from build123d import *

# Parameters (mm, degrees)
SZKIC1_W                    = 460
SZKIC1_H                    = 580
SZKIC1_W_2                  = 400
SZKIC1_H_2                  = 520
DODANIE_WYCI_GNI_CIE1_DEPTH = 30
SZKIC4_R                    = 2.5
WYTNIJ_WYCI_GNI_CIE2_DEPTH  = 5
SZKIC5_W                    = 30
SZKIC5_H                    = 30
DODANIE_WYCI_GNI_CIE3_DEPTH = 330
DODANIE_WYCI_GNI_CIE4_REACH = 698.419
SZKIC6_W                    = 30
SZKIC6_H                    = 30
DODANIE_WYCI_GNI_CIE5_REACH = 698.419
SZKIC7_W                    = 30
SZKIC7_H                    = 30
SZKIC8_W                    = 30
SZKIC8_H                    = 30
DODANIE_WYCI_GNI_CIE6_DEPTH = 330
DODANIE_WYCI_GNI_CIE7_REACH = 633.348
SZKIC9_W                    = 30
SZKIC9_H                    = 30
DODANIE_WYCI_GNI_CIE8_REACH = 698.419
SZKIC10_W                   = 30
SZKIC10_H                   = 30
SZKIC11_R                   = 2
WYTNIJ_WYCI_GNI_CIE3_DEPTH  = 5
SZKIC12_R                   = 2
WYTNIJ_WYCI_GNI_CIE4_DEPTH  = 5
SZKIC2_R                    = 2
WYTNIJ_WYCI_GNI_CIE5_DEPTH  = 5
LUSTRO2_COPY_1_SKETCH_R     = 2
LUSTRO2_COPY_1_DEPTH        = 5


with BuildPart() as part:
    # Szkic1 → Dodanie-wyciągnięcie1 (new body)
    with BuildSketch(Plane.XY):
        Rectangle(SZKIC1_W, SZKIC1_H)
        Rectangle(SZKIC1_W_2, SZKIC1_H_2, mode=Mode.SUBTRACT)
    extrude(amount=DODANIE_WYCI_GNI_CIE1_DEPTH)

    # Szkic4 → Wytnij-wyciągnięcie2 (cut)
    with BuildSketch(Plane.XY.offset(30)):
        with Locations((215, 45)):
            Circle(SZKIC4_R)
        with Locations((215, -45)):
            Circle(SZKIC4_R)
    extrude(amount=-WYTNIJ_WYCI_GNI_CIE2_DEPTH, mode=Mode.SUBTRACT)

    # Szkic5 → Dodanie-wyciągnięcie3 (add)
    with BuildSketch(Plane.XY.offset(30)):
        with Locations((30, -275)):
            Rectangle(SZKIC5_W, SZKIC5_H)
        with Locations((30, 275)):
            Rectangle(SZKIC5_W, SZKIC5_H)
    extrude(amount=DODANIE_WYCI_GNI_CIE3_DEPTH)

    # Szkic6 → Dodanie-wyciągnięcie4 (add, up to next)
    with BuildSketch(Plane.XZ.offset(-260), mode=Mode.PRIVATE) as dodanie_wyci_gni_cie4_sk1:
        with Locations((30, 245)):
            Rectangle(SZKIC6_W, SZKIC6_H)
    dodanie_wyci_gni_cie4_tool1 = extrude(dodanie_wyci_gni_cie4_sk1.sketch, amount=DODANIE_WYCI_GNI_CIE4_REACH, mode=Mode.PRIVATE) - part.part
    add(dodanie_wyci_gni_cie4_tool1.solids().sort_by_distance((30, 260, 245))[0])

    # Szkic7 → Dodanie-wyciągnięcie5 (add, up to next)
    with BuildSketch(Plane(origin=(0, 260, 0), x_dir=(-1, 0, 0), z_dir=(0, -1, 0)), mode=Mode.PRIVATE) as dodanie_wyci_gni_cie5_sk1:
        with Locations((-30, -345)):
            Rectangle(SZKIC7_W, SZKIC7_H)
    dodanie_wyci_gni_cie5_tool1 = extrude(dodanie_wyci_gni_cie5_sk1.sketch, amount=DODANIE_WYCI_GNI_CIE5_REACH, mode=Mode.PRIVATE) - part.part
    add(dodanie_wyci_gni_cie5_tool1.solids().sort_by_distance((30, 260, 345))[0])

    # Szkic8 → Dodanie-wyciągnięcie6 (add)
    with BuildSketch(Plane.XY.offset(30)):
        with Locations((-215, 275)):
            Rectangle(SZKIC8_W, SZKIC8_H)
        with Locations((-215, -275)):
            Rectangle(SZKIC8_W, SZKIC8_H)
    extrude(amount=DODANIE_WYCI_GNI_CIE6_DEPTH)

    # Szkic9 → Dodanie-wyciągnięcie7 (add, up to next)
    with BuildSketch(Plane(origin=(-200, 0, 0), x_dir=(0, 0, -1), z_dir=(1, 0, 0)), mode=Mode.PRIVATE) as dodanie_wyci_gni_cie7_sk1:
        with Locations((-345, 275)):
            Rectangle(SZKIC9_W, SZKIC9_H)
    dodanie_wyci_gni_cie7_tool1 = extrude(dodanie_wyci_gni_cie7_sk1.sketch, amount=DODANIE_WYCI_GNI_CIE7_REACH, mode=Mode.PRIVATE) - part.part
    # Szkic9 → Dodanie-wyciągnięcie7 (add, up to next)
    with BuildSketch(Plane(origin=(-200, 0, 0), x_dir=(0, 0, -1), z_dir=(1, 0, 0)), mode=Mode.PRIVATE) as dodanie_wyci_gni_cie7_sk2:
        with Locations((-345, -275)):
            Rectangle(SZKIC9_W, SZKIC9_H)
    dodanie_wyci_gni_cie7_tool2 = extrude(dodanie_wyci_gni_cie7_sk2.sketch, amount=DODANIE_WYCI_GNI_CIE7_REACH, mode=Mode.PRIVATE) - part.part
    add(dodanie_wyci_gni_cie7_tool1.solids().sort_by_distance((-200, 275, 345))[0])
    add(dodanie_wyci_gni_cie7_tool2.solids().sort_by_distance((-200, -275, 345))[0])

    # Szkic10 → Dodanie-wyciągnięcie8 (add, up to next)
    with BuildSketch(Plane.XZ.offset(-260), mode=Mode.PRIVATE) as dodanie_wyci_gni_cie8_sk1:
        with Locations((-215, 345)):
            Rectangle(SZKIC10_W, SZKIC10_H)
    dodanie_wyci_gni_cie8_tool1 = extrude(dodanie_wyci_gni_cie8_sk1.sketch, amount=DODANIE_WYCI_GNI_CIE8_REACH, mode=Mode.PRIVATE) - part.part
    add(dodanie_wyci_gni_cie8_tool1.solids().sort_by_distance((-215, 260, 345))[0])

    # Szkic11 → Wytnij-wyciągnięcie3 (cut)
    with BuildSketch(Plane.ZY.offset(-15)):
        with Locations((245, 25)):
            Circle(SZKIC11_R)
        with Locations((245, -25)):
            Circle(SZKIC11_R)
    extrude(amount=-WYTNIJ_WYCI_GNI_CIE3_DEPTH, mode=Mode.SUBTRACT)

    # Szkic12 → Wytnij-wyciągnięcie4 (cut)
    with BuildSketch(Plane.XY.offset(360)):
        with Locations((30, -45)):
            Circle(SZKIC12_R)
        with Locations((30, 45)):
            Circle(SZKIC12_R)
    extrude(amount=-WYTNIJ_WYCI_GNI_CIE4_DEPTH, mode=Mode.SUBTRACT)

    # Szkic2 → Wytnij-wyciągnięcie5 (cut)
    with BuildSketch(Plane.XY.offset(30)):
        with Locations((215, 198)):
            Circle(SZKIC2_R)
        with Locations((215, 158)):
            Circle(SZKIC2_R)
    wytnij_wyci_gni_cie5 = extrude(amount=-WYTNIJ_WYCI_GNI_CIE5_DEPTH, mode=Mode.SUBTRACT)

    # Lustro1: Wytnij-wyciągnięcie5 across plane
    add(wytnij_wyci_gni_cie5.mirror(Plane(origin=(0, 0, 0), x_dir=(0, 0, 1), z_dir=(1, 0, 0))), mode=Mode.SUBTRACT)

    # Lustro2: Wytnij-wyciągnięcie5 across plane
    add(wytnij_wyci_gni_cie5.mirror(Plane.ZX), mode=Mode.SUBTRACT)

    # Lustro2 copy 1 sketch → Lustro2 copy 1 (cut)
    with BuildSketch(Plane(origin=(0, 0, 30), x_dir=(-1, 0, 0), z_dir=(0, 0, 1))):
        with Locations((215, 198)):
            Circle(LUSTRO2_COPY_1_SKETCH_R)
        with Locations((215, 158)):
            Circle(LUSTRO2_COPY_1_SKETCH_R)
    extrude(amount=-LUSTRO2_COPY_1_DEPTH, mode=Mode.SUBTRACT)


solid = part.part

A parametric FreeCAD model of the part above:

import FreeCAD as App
import Part
import Sketcher
Q = App.Units.Quantity

doc = App.newDocument("Part")
body = doc.addObject("PartDesign::Body", "Body")

# Sketch on XY plane
sketch1 = body.newObject("Sketcher::SketchObject", "Sketch")
sketch1.AttachmentSupport = (doc.getObject("XY_Plane"), [""])
sketch1.MapMode = "FlatFace"
sketch1.addGeometry([
    Part.LineSegment(App.Vector(-230, 290, 0), App.Vector(-230, -290, 0)),  # 0
    Part.LineSegment(App.Vector(-230, -290, 0), App.Vector(230, -290, 0)),  # 1
    Part.LineSegment(App.Vector(230, -290, 0), App.Vector(230, 290, 0)),  # 2
    Part.LineSegment(App.Vector(230, 290, 0), App.Vector(-230, 290, 0)),  # 3
    Part.LineSegment(App.Vector(200, -260, 0), App.Vector(-200, -260, 0)),  # 4
    Part.LineSegment(App.Vector(-200, -260, 0), App.Vector(-200, 260, 0)),  # 5
    Part.LineSegment(App.Vector(-200, 260, 0), App.Vector(200, 260, 0)),  # 6
    Part.LineSegment(App.Vector(200, 260, 0), App.Vector(200, -260, 0)),  # 7
], False)
sketch1.addConstraint([
    Sketcher.Constraint("Coincident", 0, 2, 1, 1),
    Sketcher.Constraint("Coincident", 1, 2, 2, 1),
    Sketcher.Constraint("Coincident", 2, 2, 3, 1),
    Sketcher.Constraint("Coincident", 3, 2, 0, 1),
    Sketcher.Constraint("Coincident", 4, 2, 5, 1),
    Sketcher.Constraint("Coincident", 5, 2, 6, 1),
    Sketcher.Constraint("Coincident", 6, 2, 7, 1),
    Sketcher.Constraint("Coincident", 7, 2, 4, 1),
    Sketcher.Constraint("Vertical", 0),
    Sketcher.Constraint("Horizontal", 1),
    Sketcher.Constraint("Vertical", 2),
    Sketcher.Constraint("Horizontal", 3),
    Sketcher.Constraint("Horizontal", 4),
    Sketcher.Constraint("Vertical", 5),
    Sketcher.Constraint("Horizontal", 6),
    Sketcher.Constraint("Vertical", 7),
    Sketcher.Constraint("Symmetric", 0, 2, 2, 2, -1, 1),
    Sketcher.Constraint("Symmetric", 4, 2, 6, 2, -1, 1),
    Sketcher.Constraint("DistanceX", 1, 1, 1, 2, Q("460 mm")),
    Sketcher.Constraint("DistanceX", 4, 2, 4, 1, Q("400 mm")),
    Sketcher.Constraint("DistanceY", 0, 2, 0, 1, Q("580 mm")),
    Sketcher.Constraint("DistanceY", 5, 1, 5, 2, Q("520 mm")),
])
pad1 = body.newObject("PartDesign::Pad", "Pad")
pad1.Profile = sketch1
pad1.Length = 30

# Sketch on XY plane
sketch2 = body.newObject("Sketcher::SketchObject", "Sketch001")
sketch2.AttachmentSupport = (doc.getObject("XY_Plane"), [""])
sketch2.MapMode = "FlatFace"
sketch2.AttachmentOffset = App.Placement(App.Vector(0, 0, 30), App.Rotation())
sketch2.addGeometry([
    Part.Circle(App.Vector(215, 45, 0), App.Vector(0, 0, 1), 2.5),
    Part.Circle(App.Vector(215, -45, 0), App.Vector(0, 0, 1), 2.5),
], False)
sketch2.addConstraint([
    Sketcher.Constraint("Equal", 0, 1),
    Sketcher.Constraint("Symmetric", 0, 3, 1, 3, -1),
    Sketcher.Constraint("Diameter", 0, Q("5 mm")),
    Sketcher.Constraint("DistanceX", -1, 1, 0, 3, Q("215 mm")),
    Sketcher.Constraint("DistanceY", -1, 1, 0, 3, Q("45 mm")),
])
pocket1 = body.newObject("PartDesign::Pocket", "Pocket")
pocket1.Profile = sketch2
pocket1.Length = 5

# Sketch on XY plane
sketch3 = body.newObject("Sketcher::SketchObject", "Sketch002")
sketch3.AttachmentSupport = (doc.getObject("XY_Plane"), [""])
sketch3.MapMode = "FlatFace"
sketch3.AttachmentOffset = App.Placement(App.Vector(0, 0, 30), App.Rotation())
sketch3.addGeometry([
    Part.LineSegment(App.Vector(15, -260, 0), App.Vector(15, -290, 0)),  # 0
    Part.LineSegment(App.Vector(15, -290, 0), App.Vector(45, -290, 0)),  # 1
    Part.LineSegment(App.Vector(45, -290, 0), App.Vector(45, -260, 0)),  # 2
    Part.LineSegment(App.Vector(45, -260, 0), App.Vector(15, -260, 0)),  # 3
    Part.LineSegment(App.Vector(15, 290, 0), App.Vector(15, 260, 0)),  # 4
    Part.LineSegment(App.Vector(15, 260, 0), App.Vector(45, 260, 0)),  # 5
    Part.LineSegment(App.Vector(45, 260, 0), App.Vector(45, 290, 0)),  # 6
    Part.LineSegment(App.Vector(45, 290, 0), App.Vector(15, 290, 0)),  # 7
], False)
sketch3.addConstraint([
    Sketcher.Constraint("Coincident", 0, 2, 1, 1),
    Sketcher.Constraint("Coincident", 1, 2, 2, 1),
    Sketcher.Constraint("Coincident", 2, 2, 3, 1),
    Sketcher.Constraint("Coincident", 3, 2, 0, 1),
    Sketcher.Constraint("Coincident", 4, 2, 5, 1),
    Sketcher.Constraint("Coincident", 5, 2, 6, 1),
    Sketcher.Constraint("Coincident", 6, 2, 7, 1),
    Sketcher.Constraint("Coincident", 7, 2, 4, 1),
    Sketcher.Constraint("Vertical", 0),
    Sketcher.Constraint("Horizontal", 1),
    Sketcher.Constraint("Vertical", 2),
    Sketcher.Constraint("Horizontal", 3),
    Sketcher.Constraint("Vertical", 4),
    Sketcher.Constraint("Horizontal", 5),
    Sketcher.Constraint("Vertical", 6),
    Sketcher.Constraint("Horizontal", 7),
    Sketcher.Constraint("Symmetric", 3, 2, 4, 2, -1),
    Sketcher.Constraint("Symmetric", 1, 2, 6, 2, -1),
    Sketcher.Constraint("Equal", 7, 0),
    Sketcher.Constraint("DistanceX", 1, 1, 1, 2, Q("30 mm")),
    Sketcher.Constraint("DistanceX", -1, 1, 0, 2, Q("15 mm")),
    Sketcher.Constraint("DistanceY", 0, 2, -1, 1, Q("290 mm")),
])
pad2 = body.newObject("PartDesign::Pad", "Pad001")
pad2.Profile = sketch3
pad2.Length = 330

# Sketch on XZ plane
sketch4 = body.newObject("Sketcher::SketchObject", "Sketch003")
sketch4.AttachmentSupport = (doc.getObject("XZ_Plane"), [""])
sketch4.MapMode = "FlatFace"
sketch4.AttachmentOffset = App.Placement(App.Vector(0, 0, -260), App.Rotation())
sketch4.addGeometry([
    Part.LineSegment(App.Vector(15, 260, 0), App.Vector(15, 230, 0)),
    Part.LineSegment(App.Vector(15, 230, 0), App.Vector(45, 230, 0)),
    Part.LineSegment(App.Vector(45, 230, 0), App.Vector(45, 260, 0)),
    Part.LineSegment(App.Vector(45, 260, 0), App.Vector(15, 260, 0)),
], False)
sketch4.addConstraint([
    Sketcher.Constraint("Coincident", 0, 2, 1, 1),
    Sketcher.Constraint("Coincident", 1, 2, 2, 1),
    Sketcher.Constraint("Coincident", 2, 2, 3, 1),
    Sketcher.Constraint("Coincident", 3, 2, 0, 1),
    Sketcher.Constraint("Vertical", 0),
    Sketcher.Constraint("Horizontal", 1),
    Sketcher.Constraint("Vertical", 2),
    Sketcher.Constraint("Horizontal", 3),
    Sketcher.Constraint("Equal", 3, 0),
    Sketcher.Constraint("DistanceX", 1, 1, 1, 2, Q("30 mm")),
    Sketcher.Constraint("DistanceX", -1, 1, 0, 2, Q("15 mm")),
    Sketcher.Constraint("DistanceY", -1, 1, 0, 2, Q("230 mm")),
])
pad3 = body.newObject("PartDesign::Pad", "Pad002")
pad3.Profile = sketch4
pad3.Type = "UpToFirst"

# Sketch on XZ plane
sketch5 = body.newObject("Sketcher::SketchObject", "Sketch004")
sketch5.AttachmentSupport = (doc.getObject("XZ_Plane"), [""])
sketch5.MapMode = "FlatFace"
sketch5.AttachmentOffset = App.Placement(App.Vector(0, 0, -260), App.Rotation())
sketch5.addGeometry([
    Part.LineSegment(App.Vector(45, 330, 0), App.Vector(45, 360, 0)),
    Part.LineSegment(App.Vector(45, 360, 0), App.Vector(15, 360, 0)),
    Part.LineSegment(App.Vector(15, 360, 0), App.Vector(15, 330, 0)),
    Part.LineSegment(App.Vector(15, 330, 0), App.Vector(45, 330, 0)),
], False)
sketch5.addConstraint([
    Sketcher.Constraint("Coincident", 0, 2, 1, 1),
    Sketcher.Constraint("Coincident", 1, 2, 2, 1),
    Sketcher.Constraint("Coincident", 2, 2, 3, 1),
    Sketcher.Constraint("Coincident", 3, 2, 0, 1),
    Sketcher.Constraint("Vertical", 0),
    Sketcher.Constraint("Horizontal", 1),
    Sketcher.Constraint("Vertical", 2),
    Sketcher.Constraint("Horizontal", 3),
    Sketcher.Constraint("Equal", 3, 0),
    Sketcher.Constraint("DistanceX", 1, 2, 1, 1, Q("30 mm")),
    Sketcher.Constraint("DistanceX", -1, 1, 0, 2, Q("45 mm")),
    Sketcher.Constraint("DistanceY", -1, 1, 0, 2, Q("360 mm")),
])
pad4 = body.newObject("PartDesign::Pad", "Pad003")
pad4.Profile = sketch5
pad4.Type = "UpToFirst"

# Sketch on XY plane
sketch6 = body.newObject("Sketcher::SketchObject", "Sketch005")
sketch6.AttachmentSupport = (doc.getObject("XY_Plane"), [""])
sketch6.MapMode = "FlatFace"
sketch6.AttachmentOffset = App.Placement(App.Vector(0, 0, 30), App.Rotation())
sketch6.addGeometry([
    Part.LineSegment(App.Vector(-230, 290, 0), App.Vector(-230, 260, 0)),  # 0
    Part.LineSegment(App.Vector(-230, 260, 0), App.Vector(-200, 260, 0)),  # 1
    Part.LineSegment(App.Vector(-200, 260, 0), App.Vector(-200, 290, 0)),  # 2
    Part.LineSegment(App.Vector(-200, 290, 0), App.Vector(-230, 290, 0)),  # 3
    Part.LineSegment(App.Vector(-230, -260, 0), App.Vector(-230, -290, 0)),  # 4
    Part.LineSegment(App.Vector(-230, -290, 0), App.Vector(-200, -290, 0)),  # 5
    Part.LineSegment(App.Vector(-200, -290, 0), App.Vector(-200, -260, 0)),  # 6
    Part.LineSegment(App.Vector(-200, -260, 0), App.Vector(-230, -260, 0)),  # 7
], False)
sketch6.addConstraint([
    Sketcher.Constraint("Coincident", 0, 2, 1, 1),
    Sketcher.Constraint("Coincident", 1, 2, 2, 1),
    Sketcher.Constraint("Coincident", 2, 2, 3, 1),
    Sketcher.Constraint("Coincident", 3, 2, 0, 1),
    Sketcher.Constraint("Coincident", 4, 2, 5, 1),
    Sketcher.Constraint("Coincident", 5, 2, 6, 1),
    Sketcher.Constraint("Coincident", 6, 2, 7, 1),
    Sketcher.Constraint("Coincident", 7, 2, 4, 1),
    Sketcher.Constraint("Vertical", 0),
    Sketcher.Constraint("Horizontal", 1),
    Sketcher.Constraint("Vertical", 2),
    Sketcher.Constraint("Horizontal", 3),
    Sketcher.Constraint("Vertical", 4),
    Sketcher.Constraint("Horizontal", 5),
    Sketcher.Constraint("Vertical", 6),
    Sketcher.Constraint("Horizontal", 7),
    Sketcher.Constraint("Symmetric", 3, 2, 4, 2, -1),
    Sketcher.Constraint("Symmetric", 1, 2, 6, 2, -1),
    Sketcher.Constraint("Equal", 7, 0),
    Sketcher.Constraint("DistanceX", 1, 1, 1, 2, Q("30 mm")),
    Sketcher.Constraint("DistanceX", 0, 2, -1, 1, Q("230 mm")),
    Sketcher.Constraint("DistanceY", -1, 1, 0, 2, Q("260 mm")),
])
pad5 = body.newObject("PartDesign::Pad", "Pad004")
pad5.Profile = sketch6
pad5.Length = 330

# Sketch on YZ plane
sketch7 = body.newObject("Sketcher::SketchObject", "Sketch006")
sketch7.AttachmentSupport = (doc.getObject("YZ_Plane"), [""])
sketch7.MapMode = "FlatFace"
sketch7.AttachmentOffset = App.Placement(App.Vector(0, 0, -200), App.Rotation())
sketch7.addGeometry([
    Part.LineSegment(App.Vector(290, 360, 0), App.Vector(260, 360, 0)),
    Part.LineSegment(App.Vector(260, 360, 0), App.Vector(260, 330, 0)),
    Part.LineSegment(App.Vector(260, 330, 0), App.Vector(290, 330, 0)),
    Part.LineSegment(App.Vector(290, 330, 0), App.Vector(290, 360, 0)),
], False)
sketch7.addConstraint([
    Sketcher.Constraint("Coincident", 0, 2, 1, 1),
    Sketcher.Constraint("Coincident", 1, 2, 2, 1),
    Sketcher.Constraint("Coincident", 2, 2, 3, 1),
    Sketcher.Constraint("Coincident", 3, 2, 0, 1),
    Sketcher.Constraint("Horizontal", 0),
    Sketcher.Constraint("Vertical", 1),
    Sketcher.Constraint("Horizontal", 2),
    Sketcher.Constraint("Vertical", 3),
    Sketcher.Constraint("Equal", 2, 1),
    Sketcher.Constraint("DistanceX", 0, 2, 0, 1, Q("30 mm")),
    Sketcher.Constraint("DistanceX", -1, 1, 0, 2, Q("260 mm")),
    Sketcher.Constraint("DistanceY", -1, 1, 0, 2, Q("360 mm")),
])
pad6 = body.newObject("PartDesign::Pad", "Pad005")
pad6.Profile = sketch7
pad6.Type = "UpToFirst"

# Sketch on YZ plane
sketch8 = body.newObject("Sketcher::SketchObject", "Sketch007")
sketch8.AttachmentSupport = (doc.getObject("YZ_Plane"), [""])
sketch8.MapMode = "FlatFace"
sketch8.AttachmentOffset = App.Placement(App.Vector(0, 0, -200), App.Rotation())
sketch8.addGeometry([
    Part.LineSegment(App.Vector(-260, 360, 0), App.Vector(-290, 360, 0)),
    Part.LineSegment(App.Vector(-290, 360, 0), App.Vector(-290, 330, 0)),
    Part.LineSegment(App.Vector(-290, 330, 0), App.Vector(-260, 330, 0)),
    Part.LineSegment(App.Vector(-260, 330, 0), App.Vector(-260, 360, 0)),
], False)
sketch8.addConstraint([
    Sketcher.Constraint("Coincident", 0, 2, 1, 1),
    Sketcher.Constraint("Coincident", 1, 2, 2, 1),
    Sketcher.Constraint("Coincident", 2, 2, 3, 1),
    Sketcher.Constraint("Coincident", 3, 2, 0, 1),
    Sketcher.Constraint("Horizontal", 0),
    Sketcher.Constraint("Vertical", 1),
    Sketcher.Constraint("Horizontal", 2),
    Sketcher.Constraint("Vertical", 3),
    Sketcher.Constraint("Equal", 2, 1),
    Sketcher.Constraint("DistanceX", 0, 2, 0, 1, Q("30 mm")),
    Sketcher.Constraint("DistanceX", 0, 2, -1, 1, Q("290 mm")),
    Sketcher.Constraint("DistanceY", -1, 1, 0, 2, Q("360 mm")),
])
pad7 = body.newObject("PartDesign::Pad", "Pad006")
pad7.Profile = sketch8
pad7.Type = "UpToFirst"

# Sketch on XZ plane
sketch9 = body.newObject("Sketcher::SketchObject", "Sketch008")
sketch9.AttachmentSupport = (doc.getObject("XZ_Plane"), [""])
sketch9.MapMode = "FlatFace"
sketch9.AttachmentOffset = App.Placement(App.Vector(0, 0, -260), App.Rotation())
sketch9.addGeometry([
    Part.LineSegment(App.Vector(-230, 360, 0), App.Vector(-230, 330, 0)),
    Part.LineSegment(App.Vector(-230, 330, 0), App.Vector(-200, 330, 0)),
    Part.LineSegment(App.Vector(-200, 330, 0), App.Vector(-200, 360, 0)),
    Part.LineSegment(App.Vector(-200, 360, 0), App.Vector(-230, 360, 0)),
], False)
sketch9.addConstraint([
    Sketcher.Constraint("Coincident", 0, 2, 1, 1),
    Sketcher.Constraint("Coincident", 1, 2, 2, 1),
    Sketcher.Constraint("Coincident", 2, 2, 3, 1),
    Sketcher.Constraint("Coincident", 3, 2, 0, 1),
    Sketcher.Constraint("Vertical", 0),
    Sketcher.Constraint("Horizontal", 1),
    Sketcher.Constraint("Vertical", 2),
    Sketcher.Constraint("Horizontal", 3),
    Sketcher.Constraint("Equal", 3, 0),
    Sketcher.Constraint("DistanceX", 1, 1, 1, 2, Q("30 mm")),
    Sketcher.Constraint("DistanceX", 0, 2, -1, 1, Q("230 mm")),
    Sketcher.Constraint("DistanceY", -1, 1, 0, 2, Q("330 mm")),
])
pad8 = body.newObject("PartDesign::Pad", "Pad007")
pad8.Profile = sketch9
pad8.Type = "UpToFirst"

# Sketch on YZ plane
sketch10 = body.newObject("Sketcher::SketchObject", "Sketch009")
sketch10.AttachmentSupport = (doc.getObject("YZ_Plane"), [""])
sketch10.MapMode = "FlatFace"
sketch10.AttachmentOffset = App.Placement(App.Vector(0, 0, 15), App.Rotation())
sketch10.addGeometry([
    Part.Circle(App.Vector(25, 245, 0), App.Vector(0, 0, 1), 2),
    Part.Circle(App.Vector(-25, 245, 0), App.Vector(0, 0, 1), 2),
], False)
sketch10.addConstraint([
    Sketcher.Constraint("Equal", 0, 1),
    Sketcher.Constraint("Symmetric", 0, 3, 1, 3, -2),
    Sketcher.Constraint("Diameter", 0, Q("4 mm")),
    Sketcher.Constraint("DistanceX", -1, 1, 0, 3, Q("25 mm")),
    Sketcher.Constraint("DistanceY", -1, 1, 0, 3, Q("245 mm")),
])
pocket2 = body.newObject("PartDesign::Pocket", "Pocket001")
pocket2.Profile = sketch10
pocket2.Length = 5
pocket2.Reversed = True

# Sketch on XY plane
sketch11 = body.newObject("Sketcher::SketchObject", "Sketch010")
sketch11.AttachmentSupport = (doc.getObject("XY_Plane"), [""])
sketch11.MapMode = "FlatFace"
sketch11.AttachmentOffset = App.Placement(App.Vector(0, 0, 360), App.Rotation())
sketch11.addGeometry([
    Part.Circle(App.Vector(30, -45, 0), App.Vector(0, 0, 1), 2),
    Part.Circle(App.Vector(30, 45, 0), App.Vector(0, 0, 1), 2),
], False)
sketch11.addConstraint([
    Sketcher.Constraint("Equal", 0, 1),
    Sketcher.Constraint("Symmetric", 0, 3, 1, 3, -1),
    Sketcher.Constraint("Diameter", 0, Q("4 mm")),
    Sketcher.Constraint("DistanceX", -1, 1, 0, 3, Q("30 mm")),
    Sketcher.Constraint("DistanceY", 0, 3, -1, 1, Q("45 mm")),
])
pocket3 = body.newObject("PartDesign::Pocket", "Pocket002")
pocket3.Profile = sketch11
pocket3.Length = 5

# Sketch on XY plane
sketch12 = body.newObject("Sketcher::SketchObject", "Sketch011")
sketch12.AttachmentSupport = (doc.getObject("XY_Plane"), [""])
sketch12.MapMode = "FlatFace"
sketch12.AttachmentOffset = App.Placement(App.Vector(0, 0, 30), App.Rotation())
sketch12.addGeometry([
    Part.Circle(App.Vector(215, 198, 0), App.Vector(0, 0, 1), 2),
    Part.Circle(App.Vector(215, 158, 0), App.Vector(0, 0, 1), 2),
], False)
sketch12.addConstraint([
    Sketcher.Constraint("Equal", 0, 1),
    Sketcher.Constraint("Vertical", 0, 3, 1, 3),
    Sketcher.Constraint("Diameter", 0, Q("4 mm")),
    Sketcher.Constraint("DistanceX", -1, 1, 0, 3, Q("215 mm")),
    Sketcher.Constraint("DistanceY", -1, 1, 0, 3, Q("198 mm")),
    Sketcher.Constraint("DistanceY", -1, 1, 1, 3, Q("158 mm")),
])
pocket4 = body.newObject("PartDesign::Pocket", "Pocket003")
pocket4.Profile = sketch12
pocket4.Length = 5
doc.recompute()

mirrored = body.newObject("PartDesign::Mirrored", "Mirrored")
mirrored.Originals = [pocket4]
mirrored.MirrorPlane = (doc.getObject("YZ_Plane"), [""])
body.Tip = mirrored
doc.recompute()

mirrored2 = body.newObject("PartDesign::Mirrored", "Mirrored001")
mirrored2.Originals = [pocket4]
mirrored2.MirrorPlane = (doc.getObject("XZ_Plane"), [""])
body.Tip = mirrored2

# Sketch on XY plane
sketch13 = body.newObject("Sketcher::SketchObject", "Sketch012")
sketch13.AttachmentSupport = (doc.getObject("XY_Plane"), [""])
sketch13.MapMode = "FlatFace"
sketch13.AttachmentOffset = App.Placement(App.Vector(0, 0, 30), App.Rotation())
sketch13.addGeometry([
    Part.Circle(App.Vector(-215, -198, 0), App.Vector(0, 0, 1), 2),
    Part.Circle(App.Vector(-215, -158, 0), App.Vector(0, 0, 1), 2),
], False)
sketch13.addConstraint([
    Sketcher.Constraint("Equal", 0, 1),
    Sketcher.Constraint("Vertical", 0, 3, 1, 3),
    Sketcher.Constraint("Diameter", 0, Q("4 mm")),
    Sketcher.Constraint("DistanceX", 0, 3, -1, 1, Q("215 mm")),
    Sketcher.Constraint("DistanceY", 0, 3, -1, 1, Q("198 mm")),
    Sketcher.Constraint("DistanceY", 1, 3, -1, 1, Q("158 mm")),
])
pocket5 = body.newObject("PartDesign::Pocket", "Pocket004")
pocket5.Profile = sketch13
pocket5.Length = 5

doc.recompute()
